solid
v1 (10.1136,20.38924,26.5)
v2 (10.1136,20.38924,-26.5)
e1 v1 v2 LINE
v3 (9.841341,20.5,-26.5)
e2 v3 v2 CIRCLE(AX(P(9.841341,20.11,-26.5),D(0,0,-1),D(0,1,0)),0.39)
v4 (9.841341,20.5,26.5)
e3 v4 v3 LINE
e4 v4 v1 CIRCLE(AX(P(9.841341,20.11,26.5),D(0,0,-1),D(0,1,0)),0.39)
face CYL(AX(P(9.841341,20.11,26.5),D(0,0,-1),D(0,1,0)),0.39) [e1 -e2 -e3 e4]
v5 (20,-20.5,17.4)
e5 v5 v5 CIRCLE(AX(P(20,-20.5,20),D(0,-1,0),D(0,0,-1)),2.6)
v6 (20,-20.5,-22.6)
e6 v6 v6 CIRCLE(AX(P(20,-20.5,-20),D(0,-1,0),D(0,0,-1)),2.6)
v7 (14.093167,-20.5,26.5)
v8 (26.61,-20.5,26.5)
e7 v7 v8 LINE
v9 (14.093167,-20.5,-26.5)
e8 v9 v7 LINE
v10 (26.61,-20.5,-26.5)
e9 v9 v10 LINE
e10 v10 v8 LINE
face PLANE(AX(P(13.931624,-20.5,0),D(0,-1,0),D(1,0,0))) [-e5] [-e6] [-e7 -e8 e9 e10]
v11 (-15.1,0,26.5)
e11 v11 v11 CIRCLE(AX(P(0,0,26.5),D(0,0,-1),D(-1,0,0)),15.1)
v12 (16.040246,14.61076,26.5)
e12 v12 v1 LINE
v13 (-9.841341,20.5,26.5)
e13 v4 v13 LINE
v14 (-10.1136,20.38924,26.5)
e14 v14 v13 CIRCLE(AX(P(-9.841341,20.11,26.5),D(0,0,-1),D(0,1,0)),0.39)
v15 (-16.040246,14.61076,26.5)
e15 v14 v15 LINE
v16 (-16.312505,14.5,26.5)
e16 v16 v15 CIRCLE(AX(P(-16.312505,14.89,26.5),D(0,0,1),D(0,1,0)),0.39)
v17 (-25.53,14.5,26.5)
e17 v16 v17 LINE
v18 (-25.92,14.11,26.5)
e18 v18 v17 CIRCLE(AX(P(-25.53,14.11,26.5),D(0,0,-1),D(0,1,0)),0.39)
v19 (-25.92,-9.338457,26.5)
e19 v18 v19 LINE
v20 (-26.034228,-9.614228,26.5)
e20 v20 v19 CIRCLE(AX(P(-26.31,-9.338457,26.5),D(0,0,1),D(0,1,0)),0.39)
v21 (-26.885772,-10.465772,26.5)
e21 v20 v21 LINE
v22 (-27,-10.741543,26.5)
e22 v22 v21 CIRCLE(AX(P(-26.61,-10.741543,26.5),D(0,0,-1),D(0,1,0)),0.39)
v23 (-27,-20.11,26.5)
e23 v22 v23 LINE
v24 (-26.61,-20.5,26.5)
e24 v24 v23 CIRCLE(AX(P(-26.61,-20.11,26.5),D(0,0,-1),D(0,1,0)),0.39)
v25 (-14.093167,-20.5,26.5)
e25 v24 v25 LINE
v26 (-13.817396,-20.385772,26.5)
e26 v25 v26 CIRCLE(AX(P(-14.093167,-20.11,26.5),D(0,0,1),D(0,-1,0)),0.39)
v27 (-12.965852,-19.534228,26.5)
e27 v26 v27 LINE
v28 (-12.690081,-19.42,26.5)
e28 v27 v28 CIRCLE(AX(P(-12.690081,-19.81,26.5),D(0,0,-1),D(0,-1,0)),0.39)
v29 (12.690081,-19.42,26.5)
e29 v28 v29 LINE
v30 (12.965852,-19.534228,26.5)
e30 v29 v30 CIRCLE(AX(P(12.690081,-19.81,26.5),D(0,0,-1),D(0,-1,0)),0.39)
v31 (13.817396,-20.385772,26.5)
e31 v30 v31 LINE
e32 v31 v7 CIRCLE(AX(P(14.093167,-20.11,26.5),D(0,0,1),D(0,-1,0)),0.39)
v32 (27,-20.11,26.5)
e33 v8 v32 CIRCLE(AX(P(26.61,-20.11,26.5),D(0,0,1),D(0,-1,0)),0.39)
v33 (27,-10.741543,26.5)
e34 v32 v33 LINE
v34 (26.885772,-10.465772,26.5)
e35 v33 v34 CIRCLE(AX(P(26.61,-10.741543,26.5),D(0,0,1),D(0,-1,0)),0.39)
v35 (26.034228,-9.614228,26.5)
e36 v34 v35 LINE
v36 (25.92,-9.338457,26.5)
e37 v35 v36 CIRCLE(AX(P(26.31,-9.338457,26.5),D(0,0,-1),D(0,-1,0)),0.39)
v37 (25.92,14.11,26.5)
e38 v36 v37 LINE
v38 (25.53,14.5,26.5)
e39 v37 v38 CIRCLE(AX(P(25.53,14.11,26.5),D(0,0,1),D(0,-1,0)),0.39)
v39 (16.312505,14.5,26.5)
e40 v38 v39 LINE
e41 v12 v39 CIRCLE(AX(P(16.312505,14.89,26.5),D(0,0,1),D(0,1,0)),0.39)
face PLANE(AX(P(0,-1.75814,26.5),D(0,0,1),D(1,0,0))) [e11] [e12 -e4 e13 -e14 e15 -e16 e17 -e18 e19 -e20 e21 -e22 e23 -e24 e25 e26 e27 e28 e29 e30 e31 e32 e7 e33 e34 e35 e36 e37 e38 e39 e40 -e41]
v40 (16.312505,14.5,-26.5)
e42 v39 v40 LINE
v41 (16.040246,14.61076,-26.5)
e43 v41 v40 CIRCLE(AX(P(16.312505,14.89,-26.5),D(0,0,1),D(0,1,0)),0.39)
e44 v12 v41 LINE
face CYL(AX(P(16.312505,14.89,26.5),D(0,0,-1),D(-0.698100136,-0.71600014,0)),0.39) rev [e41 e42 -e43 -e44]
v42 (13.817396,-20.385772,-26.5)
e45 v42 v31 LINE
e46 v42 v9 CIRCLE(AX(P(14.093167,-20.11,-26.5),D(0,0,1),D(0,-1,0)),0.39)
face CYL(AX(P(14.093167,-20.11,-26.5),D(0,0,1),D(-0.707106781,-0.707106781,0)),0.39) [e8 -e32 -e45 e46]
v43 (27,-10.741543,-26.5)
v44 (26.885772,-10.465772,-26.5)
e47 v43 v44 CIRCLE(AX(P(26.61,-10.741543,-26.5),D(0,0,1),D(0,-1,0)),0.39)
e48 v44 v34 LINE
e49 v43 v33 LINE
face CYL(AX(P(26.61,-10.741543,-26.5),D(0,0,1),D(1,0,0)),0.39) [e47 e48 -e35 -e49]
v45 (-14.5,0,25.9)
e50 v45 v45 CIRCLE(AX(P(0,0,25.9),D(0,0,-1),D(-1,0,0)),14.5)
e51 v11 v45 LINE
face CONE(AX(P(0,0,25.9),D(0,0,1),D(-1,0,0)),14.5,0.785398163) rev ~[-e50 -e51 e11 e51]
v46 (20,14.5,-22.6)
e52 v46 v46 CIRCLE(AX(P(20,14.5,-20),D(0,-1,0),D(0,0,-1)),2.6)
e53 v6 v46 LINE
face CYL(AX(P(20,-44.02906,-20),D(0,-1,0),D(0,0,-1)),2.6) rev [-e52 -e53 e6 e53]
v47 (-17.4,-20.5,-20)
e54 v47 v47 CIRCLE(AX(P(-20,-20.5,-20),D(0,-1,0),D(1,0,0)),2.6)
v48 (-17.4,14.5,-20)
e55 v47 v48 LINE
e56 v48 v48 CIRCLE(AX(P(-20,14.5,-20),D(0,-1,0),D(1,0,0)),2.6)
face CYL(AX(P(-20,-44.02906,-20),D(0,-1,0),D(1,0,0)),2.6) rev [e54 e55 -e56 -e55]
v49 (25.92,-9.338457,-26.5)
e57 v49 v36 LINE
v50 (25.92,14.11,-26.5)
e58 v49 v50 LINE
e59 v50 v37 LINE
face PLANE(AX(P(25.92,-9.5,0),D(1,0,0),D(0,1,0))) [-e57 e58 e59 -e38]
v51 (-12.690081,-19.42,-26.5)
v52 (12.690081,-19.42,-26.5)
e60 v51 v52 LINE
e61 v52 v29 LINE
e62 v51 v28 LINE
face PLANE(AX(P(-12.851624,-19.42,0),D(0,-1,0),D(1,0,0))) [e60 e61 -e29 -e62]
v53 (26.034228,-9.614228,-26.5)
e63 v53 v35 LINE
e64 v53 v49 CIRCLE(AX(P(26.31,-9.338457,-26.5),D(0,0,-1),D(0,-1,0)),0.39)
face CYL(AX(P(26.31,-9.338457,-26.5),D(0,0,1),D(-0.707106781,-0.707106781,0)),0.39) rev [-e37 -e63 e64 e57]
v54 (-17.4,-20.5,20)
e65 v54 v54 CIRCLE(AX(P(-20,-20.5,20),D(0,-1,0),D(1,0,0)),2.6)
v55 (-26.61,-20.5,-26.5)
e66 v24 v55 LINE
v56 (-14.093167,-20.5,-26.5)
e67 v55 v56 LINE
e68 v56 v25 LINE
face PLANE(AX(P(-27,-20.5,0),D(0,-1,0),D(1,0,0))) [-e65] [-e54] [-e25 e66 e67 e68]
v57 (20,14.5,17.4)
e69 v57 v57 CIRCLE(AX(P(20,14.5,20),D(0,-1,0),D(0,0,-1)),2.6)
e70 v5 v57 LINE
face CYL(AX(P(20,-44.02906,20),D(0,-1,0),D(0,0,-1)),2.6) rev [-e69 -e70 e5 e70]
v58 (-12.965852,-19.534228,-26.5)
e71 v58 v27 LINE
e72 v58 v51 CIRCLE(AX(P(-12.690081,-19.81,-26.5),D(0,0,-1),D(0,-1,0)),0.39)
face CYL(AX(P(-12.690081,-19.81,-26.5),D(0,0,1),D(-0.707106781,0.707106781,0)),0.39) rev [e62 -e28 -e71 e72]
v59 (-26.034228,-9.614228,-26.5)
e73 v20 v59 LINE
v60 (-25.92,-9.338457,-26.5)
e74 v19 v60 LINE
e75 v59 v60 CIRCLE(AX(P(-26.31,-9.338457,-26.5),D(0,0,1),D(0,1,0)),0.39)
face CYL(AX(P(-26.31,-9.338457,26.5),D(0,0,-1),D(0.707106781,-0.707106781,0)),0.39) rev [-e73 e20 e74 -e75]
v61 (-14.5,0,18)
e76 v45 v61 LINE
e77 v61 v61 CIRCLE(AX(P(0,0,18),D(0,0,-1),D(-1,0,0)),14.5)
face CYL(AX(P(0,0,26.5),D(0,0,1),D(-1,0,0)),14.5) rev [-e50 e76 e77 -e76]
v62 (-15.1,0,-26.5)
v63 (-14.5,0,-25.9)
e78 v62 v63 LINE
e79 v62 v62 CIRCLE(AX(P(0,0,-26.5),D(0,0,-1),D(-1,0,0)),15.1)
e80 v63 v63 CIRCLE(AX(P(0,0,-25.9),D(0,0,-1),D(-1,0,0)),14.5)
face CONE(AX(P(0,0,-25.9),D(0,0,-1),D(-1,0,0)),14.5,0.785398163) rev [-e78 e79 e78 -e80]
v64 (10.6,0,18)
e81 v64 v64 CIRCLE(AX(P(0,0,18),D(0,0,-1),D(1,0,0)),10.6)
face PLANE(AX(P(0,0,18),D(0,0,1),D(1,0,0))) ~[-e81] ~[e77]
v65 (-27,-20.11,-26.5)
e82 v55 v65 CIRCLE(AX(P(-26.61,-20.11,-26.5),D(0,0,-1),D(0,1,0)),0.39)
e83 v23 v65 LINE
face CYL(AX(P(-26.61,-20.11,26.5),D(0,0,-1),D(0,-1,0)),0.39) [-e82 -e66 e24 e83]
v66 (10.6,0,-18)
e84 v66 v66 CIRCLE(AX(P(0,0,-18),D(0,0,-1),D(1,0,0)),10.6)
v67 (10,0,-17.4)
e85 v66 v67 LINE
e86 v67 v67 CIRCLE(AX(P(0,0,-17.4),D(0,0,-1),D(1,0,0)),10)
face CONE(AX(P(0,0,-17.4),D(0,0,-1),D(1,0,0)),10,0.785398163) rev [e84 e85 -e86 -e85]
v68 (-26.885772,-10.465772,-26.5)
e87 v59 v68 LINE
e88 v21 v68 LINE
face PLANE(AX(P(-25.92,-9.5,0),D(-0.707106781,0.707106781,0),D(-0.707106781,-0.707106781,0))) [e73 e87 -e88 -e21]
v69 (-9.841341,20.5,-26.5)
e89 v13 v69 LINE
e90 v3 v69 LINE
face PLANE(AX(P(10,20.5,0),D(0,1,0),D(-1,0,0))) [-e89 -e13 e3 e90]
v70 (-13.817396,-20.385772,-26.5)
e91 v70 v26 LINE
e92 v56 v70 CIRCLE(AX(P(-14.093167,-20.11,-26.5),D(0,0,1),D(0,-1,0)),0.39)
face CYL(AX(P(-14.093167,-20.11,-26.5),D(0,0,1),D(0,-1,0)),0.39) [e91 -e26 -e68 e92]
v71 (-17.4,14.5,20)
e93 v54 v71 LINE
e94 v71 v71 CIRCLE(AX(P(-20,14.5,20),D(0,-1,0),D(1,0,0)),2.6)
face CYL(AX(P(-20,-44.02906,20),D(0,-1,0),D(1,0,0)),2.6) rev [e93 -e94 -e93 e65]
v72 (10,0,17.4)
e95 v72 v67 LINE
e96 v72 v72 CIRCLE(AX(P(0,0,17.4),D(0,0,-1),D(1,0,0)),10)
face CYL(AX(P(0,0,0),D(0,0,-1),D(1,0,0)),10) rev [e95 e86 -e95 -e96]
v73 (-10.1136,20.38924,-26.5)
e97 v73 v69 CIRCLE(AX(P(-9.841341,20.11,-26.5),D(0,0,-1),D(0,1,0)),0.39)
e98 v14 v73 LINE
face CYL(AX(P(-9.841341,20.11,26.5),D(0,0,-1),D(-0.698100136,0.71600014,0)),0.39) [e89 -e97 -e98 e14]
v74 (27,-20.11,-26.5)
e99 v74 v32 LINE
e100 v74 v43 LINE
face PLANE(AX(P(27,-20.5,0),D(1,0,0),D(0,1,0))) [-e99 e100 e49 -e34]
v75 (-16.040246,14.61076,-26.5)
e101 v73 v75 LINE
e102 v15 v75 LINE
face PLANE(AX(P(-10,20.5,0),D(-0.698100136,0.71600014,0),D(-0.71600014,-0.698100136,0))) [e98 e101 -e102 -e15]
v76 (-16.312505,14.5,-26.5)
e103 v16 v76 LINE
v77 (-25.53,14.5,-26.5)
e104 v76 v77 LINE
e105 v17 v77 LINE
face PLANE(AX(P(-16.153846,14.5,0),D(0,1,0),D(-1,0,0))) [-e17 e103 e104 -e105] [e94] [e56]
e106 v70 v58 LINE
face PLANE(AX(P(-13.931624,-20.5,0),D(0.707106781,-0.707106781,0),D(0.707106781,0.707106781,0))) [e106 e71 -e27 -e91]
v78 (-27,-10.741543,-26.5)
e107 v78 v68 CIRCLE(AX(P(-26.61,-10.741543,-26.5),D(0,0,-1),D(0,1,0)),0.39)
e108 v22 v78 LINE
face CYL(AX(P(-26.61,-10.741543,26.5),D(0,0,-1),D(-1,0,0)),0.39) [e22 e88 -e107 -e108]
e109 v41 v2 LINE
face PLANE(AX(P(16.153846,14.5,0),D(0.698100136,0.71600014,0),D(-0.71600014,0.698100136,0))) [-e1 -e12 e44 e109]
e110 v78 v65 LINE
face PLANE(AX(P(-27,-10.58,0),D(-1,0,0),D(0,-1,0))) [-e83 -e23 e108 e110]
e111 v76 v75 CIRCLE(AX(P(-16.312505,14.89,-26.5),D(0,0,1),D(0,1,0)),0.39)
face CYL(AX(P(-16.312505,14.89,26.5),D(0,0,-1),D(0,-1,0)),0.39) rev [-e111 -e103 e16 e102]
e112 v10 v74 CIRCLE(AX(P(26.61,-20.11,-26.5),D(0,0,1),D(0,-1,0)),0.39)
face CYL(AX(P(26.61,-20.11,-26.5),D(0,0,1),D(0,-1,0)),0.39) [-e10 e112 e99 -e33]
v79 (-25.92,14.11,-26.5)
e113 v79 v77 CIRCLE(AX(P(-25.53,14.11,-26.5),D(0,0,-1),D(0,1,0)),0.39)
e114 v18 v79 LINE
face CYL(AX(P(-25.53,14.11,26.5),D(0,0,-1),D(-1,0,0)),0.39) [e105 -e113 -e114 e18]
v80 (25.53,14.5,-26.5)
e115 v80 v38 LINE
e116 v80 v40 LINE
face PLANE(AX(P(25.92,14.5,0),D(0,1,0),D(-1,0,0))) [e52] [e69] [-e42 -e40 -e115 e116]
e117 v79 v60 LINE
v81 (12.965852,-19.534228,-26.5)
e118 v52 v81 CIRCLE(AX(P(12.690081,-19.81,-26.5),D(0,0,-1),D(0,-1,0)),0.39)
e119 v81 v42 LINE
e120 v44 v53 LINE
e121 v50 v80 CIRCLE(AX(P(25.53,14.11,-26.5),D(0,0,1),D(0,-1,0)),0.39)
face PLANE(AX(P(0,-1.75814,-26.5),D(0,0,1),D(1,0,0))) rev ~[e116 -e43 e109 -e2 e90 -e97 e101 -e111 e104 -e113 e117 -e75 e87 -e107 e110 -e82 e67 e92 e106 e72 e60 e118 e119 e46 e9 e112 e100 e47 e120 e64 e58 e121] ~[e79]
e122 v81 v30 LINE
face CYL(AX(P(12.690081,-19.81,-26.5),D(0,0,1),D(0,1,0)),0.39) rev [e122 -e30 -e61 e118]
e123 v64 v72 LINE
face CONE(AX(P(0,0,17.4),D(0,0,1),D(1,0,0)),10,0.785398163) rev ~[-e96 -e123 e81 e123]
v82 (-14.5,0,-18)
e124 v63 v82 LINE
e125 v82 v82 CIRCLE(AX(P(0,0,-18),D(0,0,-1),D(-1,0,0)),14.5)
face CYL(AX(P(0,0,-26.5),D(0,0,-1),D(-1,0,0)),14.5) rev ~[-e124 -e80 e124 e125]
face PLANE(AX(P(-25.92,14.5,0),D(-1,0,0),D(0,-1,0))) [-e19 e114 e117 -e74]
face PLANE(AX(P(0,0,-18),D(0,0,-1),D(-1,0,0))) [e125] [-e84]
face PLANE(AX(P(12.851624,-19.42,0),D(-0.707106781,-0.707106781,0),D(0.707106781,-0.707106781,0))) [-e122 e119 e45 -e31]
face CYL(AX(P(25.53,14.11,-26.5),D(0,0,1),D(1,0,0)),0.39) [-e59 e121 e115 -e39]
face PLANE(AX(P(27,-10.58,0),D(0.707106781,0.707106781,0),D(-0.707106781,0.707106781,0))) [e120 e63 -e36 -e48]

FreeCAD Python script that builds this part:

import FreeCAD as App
import Part
import Sketcher
from FreeCAD import Vector


def edges_at(feature, points):
    """Names of the edges that pass closest to the given points."""
    edges = feature.Shape.Edges
    near = lambda p: min(range(len(edges)), key=lambda i: edges[i].distToShape(Part.Vertex(*p))[0])
    return sorted({f"Edge{near(p) + 1}" for p in points})


def add_polygon(sketch, points):
    """Adds a closed chain of lines whose ends are joined by coincident constraints."""
    first, n = sketch.GeometryCount, len(points)
    for a, b in zip(points, points[1:] + points[:1]):
        sketch.addGeometry(Part.LineSegment(App.Vector(*a, 0), App.Vector(*b, 0)), False)
    for i in range(n):
        sketch.addConstraint(Sketcher.Constraint("Coincident", first + i, 2, first + (i + 1) % n, 1))

doc = App.newDocument("Part")
body = doc.addObject("PartDesign::Body", "Body")

sketch1 = doc.addObject("Sketcher::SketchObject", "Sketch")
body.addObject(sketch1)
sketch1.AttachmentSupport = (doc.XY_Plane, [""])
sketch1.MapMode = "FlatFace"
add_polygon(sketch1, [(-27, -20.5), (-13.9, -20.5), (-12.9, -19.4), (12.9, -19.4), (13.9, -20.5), (27, -20.5), (27, -10.6), (25.9, -9.5), (25.9, 14.5), (16.2, 14.5), (10, 20.5), (-10, 20.5), (-16.2, 14.5), (-25.9, 14.5), (-25.9, -9.5), (-27, -10.6)])
sketch1.addGeometry(Part.Circle(Vector(0, 0, 0), Vector(0, 0, 1), 10), False)
sketch1.addConstraint(Sketcher.Constraint("Horizontal", 0))
sketch1.addConstraint(Sketcher.Constraint("Horizontal", 2))
sketch1.addConstraint(Sketcher.Constraint("Horizontal", 4))
sketch1.addConstraint(Sketcher.Constraint("Vertical", 5))
sketch1.addConstraint(Sketcher.Constraint("Vertical", 7))
sketch1.addConstraint(Sketcher.Constraint("Horizontal", 8))
sketch1.addConstraint(Sketcher.Constraint("Horizontal", 10))
sketch1.addConstraint(Sketcher.Constraint("Horizontal", 12))
sketch1.addConstraint(Sketcher.Constraint("Vertical", 13))
sketch1.addConstraint(Sketcher.Constraint("Vertical", 15))
sketch1.addConstraint(Sketcher.Constraint("Coincident", 16, 3, -1, 1))
sketch1.addConstraint(Sketcher.Constraint("Symmetric", 0, 2, 3, 2, -2))
sketch1.addConstraint(Sketcher.Constraint("Symmetric", 8, 2, 11, 2, -2))
sketch1.addConstraint(Sketcher.Constraint("Symmetric", 6, 2, 13, 2, -2))
sketch1.addConstraint(Sketcher.Constraint("Symmetric", 5, 2, 14, 2, -2))
sketch1.addConstraint(Sketcher.Constraint("Perpendicular", 1, 3))
sketch1.addConstraint(Sketcher.Constraint("Parallel", 3, 6))
sketch1.addConstraint(Sketcher.Constraint("Perpendicular", 6, 14))
sketch1.addConstraint(Sketcher.Constraint("Equal", 3, 6))
sketch1.addConstraint(Sketcher.Constraint("Equal", 9, 11))
sketch1.addConstraint(Sketcher.Constraint("Diameter", 16, 20.0))
sketch1.addConstraint(Sketcher.Constraint("DistanceX", 10, 2, 10, 1, 20.0))
sketch1.addConstraint(Sketcher.Constraint("DistanceY", 7, 1, 7, 2, 24.0))
sketch1.addConstraint(Sketcher.Constraint("DistanceX", -1, 1, 4, 2, 27.0))
sketch1.addConstraint(Sketcher.Constraint("DistanceY", 4, 2, 6, 2, 11.0))
sketch1.addConstraint(Sketcher.Constraint("DistanceY", 8, 2, 9, 2, 6.0))
sketch1.addConstraint(Sketcher.Constraint("DistanceY", 5, 1, 5, 2, 9.92))
sketch1.addConstraint(Sketcher.Constraint("DistanceY", 0, 2, -1, 1, 20.5))
sketch1.addConstraint(Sketcher.Constraint("DistanceX", 0, 1, 0, 2, 13.068376))
sketch1.addConstraint(Sketcher.Constraint("DistanceX", 8, 2, 8, 1, 9.766154))
pad1 = doc.addObject("PartDesign::Pad", "Pad")
body.addObject(pad1)
pad1.Profile = sketch1
pad1.Length = 53
pad1.Midplane = True

sketch2 = doc.addObject("Sketcher::SketchObject", "Sketch001")
body.addObject(sketch2)
sketch2.AttachmentSupport = (doc.XZ_Plane, [""])
sketch2.MapMode = "FlatFace"
sketch2.addGeometry(Part.Circle(Vector(-20, -20, 0), Vector(0, 0, 1), 2.6), False)
sketch2.addGeometry(Part.Circle(Vector(20, -20, 0), Vector(0, 0, 1), 2.6), False)
sketch2.addGeometry(Part.Circle(Vector(20, 20, 0), Vector(0, 0, 1), 2.6), False)
sketch2.addGeometry(Part.Circle(Vector(-20, 20, 0), Vector(0, 0, 1), 2.6), False)
sketch2.addConstraint(Sketcher.Constraint("Equal", 0, 1))
sketch2.addConstraint(Sketcher.Constraint("Equal", 1, 2))
sketch2.addConstraint(Sketcher.Constraint("Equal", 2, 3))
sketch2.addConstraint(Sketcher.Constraint("Symmetric", 0, 3, 2, 3, -1, 1))
sketch2.addConstraint(Sketcher.Constraint("Symmetric", 1, 3, 3, 3, -1, 1))
sketch2.addConstraint(Sketcher.Constraint("Symmetric", 0, 3, 1, 3, -2))
sketch2.addConstraint(Sketcher.Constraint("Diameter", 0, 5.2))
sketch2.addConstraint(Sketcher.Constraint("DistanceX", 0, 3, -1, 1, 20.0))
sketch2.addConstraint(Sketcher.Constraint("DistanceY", 0, 3, -1, 1, 20.0))
pocket1 = doc.addObject("PartDesign::Pocket", "Pocket")
body.addObject(pocket1)
pocket1.Profile = sketch2
pocket1.Type = "ThroughAll"
pocket1.Midplane = True

sketch3 = doc.addObject("Sketcher::SketchObject", "Sketch002")
body.addObject(sketch3)
sketch3.AttachmentSupport = (doc.XY_Plane, [""])
sketch3.MapMode = "FlatFace"
sketch3.AttachmentOffset = App.Placement(Vector(0, 0, -26.5), App.Rotation())
sketch3.addGeometry(Part.Circle(Vector(0, 0, 0), Vector(0, 0, 1), 14), False)
sketch3.addConstraint(Sketcher.Constraint("Coincident", 0, 3, -1, 1))
sketch3.addConstraint(Sketcher.Constraint("Diameter", 0, 29.0))
pocket2 = doc.addObject("PartDesign::Pocket", "Pocket001")
body.addObject(pocket2)
pocket2.Profile = sketch3
pocket2.Length = 8.5
pocket2.Reversed = True
doc.recompute()

mirrored = doc.addObject("PartDesign::Mirrored", "Mirrored")
body.addObject(mirrored)
mirrored.Originals = [pocket2]
mirrored.MirrorPlane = (doc.XY_Plane, [""])
body.Tip = mirrored
doc.recompute()

chamfer = doc.addObject("PartDesign::Chamfer", "Chamfer")
body.addObject(chamfer)
chamfer.Base = (mirrored, edges_at(mirrored, [
    (-10, 0, -18),
    (14.5, 0, -26.5),
    (14.5, 0, 26.5),
    (-10, 0, 18),
]))
chamfer.Size = 0.6
doc.recompute()

fillet = doc.addObject("PartDesign::Fillet", "Fillet")
body.addObject(fillet)
fillet.Base = (chamfer, edges_at(chamfer, [
    (-27, -10.58, 0),
    (-25.92, -9.5, 0),
    (-25.92, 14.5, 0),
    (-16.154, 14.5, 0),
    (-10, 20.5, 0),
    (10, 20.5, 0),
    (16.154, 14.5, 0),
    (25.92, 14.5, 0),
    (25.92, -9.5, 0),
    (27, -10.58, 0),
    (27, -20.5, 0),
    (13.932, -20.5, 0),
    (12.852, -19.42, 0),
    (-12.852, -19.42, 0),
    (-13.932, -20.5, 0),
    (-27, -20.5, 0),
]))
fillet.Radius = 0.39

doc.recompute()
